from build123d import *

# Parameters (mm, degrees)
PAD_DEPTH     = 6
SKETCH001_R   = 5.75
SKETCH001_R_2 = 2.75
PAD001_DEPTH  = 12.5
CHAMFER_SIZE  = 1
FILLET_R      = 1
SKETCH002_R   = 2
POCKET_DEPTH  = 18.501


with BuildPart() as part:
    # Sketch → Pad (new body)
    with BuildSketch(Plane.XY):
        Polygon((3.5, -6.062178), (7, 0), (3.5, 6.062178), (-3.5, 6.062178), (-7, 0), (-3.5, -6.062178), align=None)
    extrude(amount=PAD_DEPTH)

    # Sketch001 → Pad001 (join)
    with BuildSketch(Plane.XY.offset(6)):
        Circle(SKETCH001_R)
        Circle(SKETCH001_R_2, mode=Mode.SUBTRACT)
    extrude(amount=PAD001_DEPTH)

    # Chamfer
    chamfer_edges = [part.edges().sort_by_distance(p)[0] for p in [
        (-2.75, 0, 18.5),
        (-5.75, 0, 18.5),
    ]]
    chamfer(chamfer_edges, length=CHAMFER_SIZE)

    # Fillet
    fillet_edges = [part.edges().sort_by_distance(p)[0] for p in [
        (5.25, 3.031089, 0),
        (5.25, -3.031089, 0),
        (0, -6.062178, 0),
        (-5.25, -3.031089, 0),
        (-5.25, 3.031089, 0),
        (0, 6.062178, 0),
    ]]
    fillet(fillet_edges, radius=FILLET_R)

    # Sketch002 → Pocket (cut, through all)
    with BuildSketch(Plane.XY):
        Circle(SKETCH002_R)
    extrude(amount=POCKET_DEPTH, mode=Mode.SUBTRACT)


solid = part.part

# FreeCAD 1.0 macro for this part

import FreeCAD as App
import Part
import Sketcher
from FreeCAD import Vector
Q = App.Units.Quantity


def edges_at(feature, points):
    """Names of the edges that pass closest to the given points."""
    edges = feature.Shape.Edges
    near = lambda p: min(range(len(edges)), key=lambda i: edges[i].distToShape(Part.Vertex(*p))[0])
    return sorted({f"Edge{near(p) + 1}" for p in points})

doc = App.newDocument("Part")
params = doc.addObject("Spreadsheet::Sheet", "Params")
for row, (alias, value) in enumerate([
    ("sketch1_width", "7 mm"),
    ("sketch1_length", "7 mm"),
    ("pad1_length", "6 mm"),
    ("sketch2_diameter", "11.5 mm"),
    ("sketch2_diameter2", "5.5 mm"),
    ("pad2_length", "12.5 mm"),
    ("chamfer_size", "1 mm"),
    ("fillet_radius", "1 mm"),
    ("sketch3_diameter", "4 mm"),
], start=1):
    params.set(f"A{row}", alias)
    params.set(f"B{row}", "=" + value)
    params.setAlias(f"B{row}", alias)

body = doc.addObject("PartDesign::Body", "Body")

# Sketch on XY plane
sketch1 = doc.addObject("Sketcher::SketchObject", "Sketch")
body.addObject(sketch1)
sketch1.AttachmentSupport = (doc.XY_Plane, [""])
sketch1.MapMode = "FlatFace"
sketch1.addGeometry([
    Part.LineSegment(Vector(3.5, -6.062178, 0), Vector(7, 0, 0)),  # 0
    Part.LineSegment(Vector(7, 0, 0), Vector(3.5, 6.062178, 0)),  # 1
    Part.LineSegment(Vector(3.5, 6.062178, 0), Vector(-3.5, 6.062178, 0)),  # 2
    Part.LineSegment(Vector(-3.5, 6.062178, 0), Vector(-7, 0, 0)),  # 3
    Part.LineSegment(Vector(-7, 0, 0), Vector(-3.5, -6.062178, 0)),  # 4
    Part.LineSegment(Vector(-3.5, -6.062178, 0), Vector(3.5, -6.062178, 0)),  # 5
], False)
sketch1.addConstraint([
    Sketcher.Constraint("Coincident", 0, 2, 1, 1),
    Sketcher.Constraint("Coincident", 1, 2, 2, 1),
    Sketcher.Constraint("Coincident", 2, 2, 3, 1),
    Sketcher.Constraint("Coincident", 3, 2, 4, 1),
    Sketcher.Constraint("Coincident", 4, 2, 5, 1),
    Sketcher.Constraint("Coincident", 5, 2, 0, 1),
    Sketcher.Constraint("Horizontal", 2),
    Sketcher.Constraint("Horizontal", 5),
    Sketcher.Constraint("Symmetric", 0, 2, 3, 2, -1, 1),
    Sketcher.Constraint("Symmetric", 1, 2, 4, 2, -1, 1),
    Sketcher.Constraint("PointOnObject", 0, 2, -1),
    Sketcher.Constraint("Parallel", 0, 3),
    Sketcher.Constraint("Vertical", 2, 2, 4, 2),
    Sketcher.Constraint("DistanceX", 2, 2, 2, 1, 7.0),
    Sketcher.Constraint("Angle", 0, Q("60.000001 deg")),
    Sketcher.Constraint("Distance", 0, 7.0),
])
sketch1.setExpression("Constraints[13]", "Params.sketch1_width")
sketch1.setExpression("Constraints[15]", "Params.sketch1_length")
pad1 = doc.addObject("PartDesign::Pad", "Pad")
body.addObject(pad1)
pad1.Profile = sketch1
pad1.setExpression("Length", "Params.pad1_length")

# Sketch on XY plane
sketch2 = doc.addObject("Sketcher::SketchObject", "Sketch001")
body.addObject(sketch2)
sketch2.AttachmentSupport = (doc.XY_Plane, [""])
sketch2.MapMode = "FlatFace"
sketch2.AttachmentOffset = App.Placement(Vector(0, 0, 6), App.Rotation())
sketch2.addGeometry([
    Part.Circle(Vector(0, 0, 0), Vector(0, 0, 1), 5.75),
    Part.Circle(Vector(0, 0, 0), Vector(0, 0, 1), 2.75),
], False)
sketch2.addConstraint([
    Sketcher.Constraint("Coincident", 0, 3, -1, 1),
    Sketcher.Constraint("Coincident", 1, 3, -1, 1),
    Sketcher.Constraint("Diameter", 0, 11.5),
    Sketcher.Constraint("Diameter", 1, 5.5),
])
sketch2.setExpression("Constraints[2]", "Params.sketch2_diameter")
sketch2.setExpression("Constraints[3]", "Params.sketch2_diameter2")
pad2 = doc.addObject("PartDesign::Pad", "Pad001")
body.addObject(pad2)
pad2.Profile = sketch2
pad2.setExpression("Length", "Params.pad2_length")
doc.recompute()

chamfer = doc.addObject("PartDesign::Chamfer", "Chamfer")
body.addObject(chamfer)
chamfer.Base = (pad2, edges_at(pad2, [(-2.75, 0, 18.5), (-5.75, 0, 18.5)]))
chamfer.setExpression("Size", "Params.chamfer_size")
doc.recompute()

fillet = doc.addObject("PartDesign::Fillet", "Fillet")
body.addObject(fillet)
fillet.Base = (chamfer, edges_at(chamfer, [
    (5.25, 3.031, 0),
    (5.25, -3.031, 0),
    (0, -6.062, 0),
    (-5.25, -3.031, 0),
    (-5.25, 3.031, 0),
    (0, 6.062, 0),
]))
fillet.setExpression("Radius", "Params.fillet_radius")

# Sketch on XY plane
sketch3 = doc.addObject("Sketcher::SketchObject", "Sketch002")
body.addObject(sketch3)
sketch3.AttachmentSupport = (doc.XY_Plane, [""])
sketch3.MapMode = "FlatFace"
sketch3.addGeometry(Part.Circle(Vector(0, 0, 0), Vector(0, 0, 1), 2), False)
sketch3.addConstraint([
    Sketcher.Constraint("Coincident", 0, 3, -1, 1),
    Sketcher.Constraint("Diameter", 0, 4.0),
])
sketch3.setExpression("Constraints[1]", "Params.sketch3_diameter")
pocket1 = doc.addObject("PartDesign::Pocket", "Pocket")
body.addObject(pocket1)
pocket1.Profile = sketch3
pocket1.Type = "ThroughAll"
pocket1.Reversed = True

doc.recompute()
